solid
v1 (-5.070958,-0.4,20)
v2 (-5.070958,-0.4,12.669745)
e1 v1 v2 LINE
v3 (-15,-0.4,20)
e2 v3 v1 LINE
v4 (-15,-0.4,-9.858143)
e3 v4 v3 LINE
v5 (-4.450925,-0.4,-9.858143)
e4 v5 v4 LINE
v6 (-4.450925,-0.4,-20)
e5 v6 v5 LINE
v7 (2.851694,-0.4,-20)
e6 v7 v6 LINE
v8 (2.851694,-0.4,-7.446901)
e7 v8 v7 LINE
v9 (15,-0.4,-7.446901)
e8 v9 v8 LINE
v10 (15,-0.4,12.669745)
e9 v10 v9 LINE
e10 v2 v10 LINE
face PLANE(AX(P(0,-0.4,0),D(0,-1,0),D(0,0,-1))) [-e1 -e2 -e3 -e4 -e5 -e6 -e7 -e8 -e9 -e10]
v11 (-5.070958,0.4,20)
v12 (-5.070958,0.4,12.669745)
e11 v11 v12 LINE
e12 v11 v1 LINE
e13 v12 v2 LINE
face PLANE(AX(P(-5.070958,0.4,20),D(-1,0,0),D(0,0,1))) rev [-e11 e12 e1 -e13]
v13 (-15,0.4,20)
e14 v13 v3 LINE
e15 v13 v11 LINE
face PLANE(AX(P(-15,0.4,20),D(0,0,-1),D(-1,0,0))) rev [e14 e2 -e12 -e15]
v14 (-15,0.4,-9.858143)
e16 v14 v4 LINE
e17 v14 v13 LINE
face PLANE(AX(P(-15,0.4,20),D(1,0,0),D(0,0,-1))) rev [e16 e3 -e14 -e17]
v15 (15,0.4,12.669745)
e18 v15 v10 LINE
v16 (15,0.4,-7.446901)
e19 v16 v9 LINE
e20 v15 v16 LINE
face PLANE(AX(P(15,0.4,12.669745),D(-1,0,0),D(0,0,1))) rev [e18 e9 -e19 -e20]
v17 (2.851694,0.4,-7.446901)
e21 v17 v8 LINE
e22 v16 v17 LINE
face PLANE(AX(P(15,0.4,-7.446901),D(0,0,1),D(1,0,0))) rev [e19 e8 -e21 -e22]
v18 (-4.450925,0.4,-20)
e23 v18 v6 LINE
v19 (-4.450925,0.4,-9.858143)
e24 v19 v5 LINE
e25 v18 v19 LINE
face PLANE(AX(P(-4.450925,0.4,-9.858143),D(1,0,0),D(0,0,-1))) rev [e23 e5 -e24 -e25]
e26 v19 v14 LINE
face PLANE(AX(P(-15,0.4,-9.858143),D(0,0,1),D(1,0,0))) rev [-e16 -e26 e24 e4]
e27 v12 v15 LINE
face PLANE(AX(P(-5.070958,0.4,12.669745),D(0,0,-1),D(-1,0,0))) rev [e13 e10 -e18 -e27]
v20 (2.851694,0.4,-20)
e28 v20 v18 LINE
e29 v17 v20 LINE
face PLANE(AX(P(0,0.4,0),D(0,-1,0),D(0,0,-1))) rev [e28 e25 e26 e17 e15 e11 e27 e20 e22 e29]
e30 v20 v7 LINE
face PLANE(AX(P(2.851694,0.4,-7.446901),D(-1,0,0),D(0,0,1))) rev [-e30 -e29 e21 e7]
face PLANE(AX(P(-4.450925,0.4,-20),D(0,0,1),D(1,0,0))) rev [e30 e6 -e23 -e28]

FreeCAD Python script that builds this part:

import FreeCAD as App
import Part
import Sketcher
from FreeCAD import Vector

doc = App.newDocument("Part")
body = doc.addObject("PartDesign::Body", "Body")

sketch1 = doc.addObject("Sketcher::SketchObject", "Sketch")
body.addObject(sketch1)
sketch1.AttachmentSupport = (doc.XZ_Plane, [""])
sketch1.MapMode = "FlatFace"
sketch1.addGeometry(Part.LineSegment(Vector(-15, 20, 0), Vector(-5, 20, 0)), False)
sketch1.addGeometry(Part.LineSegment(Vector(-5, 20, 0), Vector(-5, 13, 0)), False)
sketch1.addGeometry(Part.LineSegment(Vector(-5, 13, 0), Vector(15, 13, 0)), False)
sketch1.addGeometry(Part.LineSegment(Vector(15, 13, 0), Vector(15, -7, 0)), False)
sketch1.addGeometry(Part.LineSegment(Vector(15, -7, 0), Vector(3, -7, 0)), False)
sketch1.addGeometry(Part.LineSegment(Vector(3, -7, 0), Vector(3, -20, 0)), False)
sketch1.addGeometry(Part.LineSegment(Vector(3, -20, 0), Vector(-4, -20, 0)), False)
sketch1.addGeometry(Part.LineSegment(Vector(-4, -20, 0), Vector(-4, -10, 0)), False)
sketch1.addGeometry(Part.LineSegment(Vector(-4, -10, 0), Vector(-15, -10, 0)), False)
sketch1.addGeometry(Part.LineSegment(Vector(-15, -10, 0), Vector(-15, 20, 0)), False)
sketch1.addConstraint(Sketcher.Constraint("Coincident", 0, 2, 1, 1))
sketch1.addConstraint(Sketcher.Constraint("Coincident", 1, 2, 2, 1))
sketch1.addConstraint(Sketcher.Constraint("Coincident", 2, 2, 3, 1))
sketch1.addConstraint(Sketcher.Constraint("Coincident", 3, 2, 4, 1))
sketch1.addConstraint(Sketcher.Constraint("Coincident", 4, 2, 5, 1))
sketch1.addConstraint(Sketcher.Constraint("Coincident", 5, 2, 6, 1))
sketch1.addConstraint(Sketcher.Constraint("Coincident", 6, 2, 7, 1))
sketch1.addConstraint(Sketcher.Constraint("Coincident", 7, 2, 8, 1))
sketch1.addConstraint(Sketcher.Constraint("Coincident", 8, 2, 9, 1))
sketch1.addConstraint(Sketcher.Constraint("Coincident", 9, 2, 0, 1))
sketch1.addConstraint(Sketcher.Constraint("Horizontal", 0))
sketch1.addConstraint(Sketcher.Constraint("Vertical", 1))
sketch1.addConstraint(Sketcher.Constraint("Horizontal", 2))
sketch1.addConstraint(Sketcher.Constraint("Vertical", 3))
sketch1.addConstraint(Sketcher.Constraint("Horizontal", 4))
sketch1.addConstraint(Sketcher.Constraint("Vertical", 5))
sketch1.addConstraint(Sketcher.Constraint("Horizontal", 6))
sketch1.addConstraint(Sketcher.Constraint("Vertical", 7))
sketch1.addConstraint(Sketcher.Constraint("Horizontal", 8))
sketch1.addConstraint(Sketcher.Constraint("Vertical", 9))
sketch1.addConstraint(Sketcher.Constraint("DistanceY", -1, 1, 0, 2, 20.0))
sketch1.addConstraint(Sketcher.Constraint("DistanceX", -1, 1, 2, 2, 15.0))
sketch1.addConstraint(Sketcher.Constraint("DistanceY", 5, 2, -1, 1, 20.0))
sketch1.addConstraint(Sketcher.Constraint("DistanceX", 8, 2, -1, 1, 15.0))
sketch1.addConstraint(Sketcher.Constraint("DistanceY", 5, 2, 5, 1, 12.553099))
sketch1.addConstraint(Sketcher.Constraint("DistanceX", 0, 1, 0, 2, 9.929042))
sketch1.addConstraint(Sketcher.Constraint("DistanceX", 6, 2, 6, 1, 7.302618))
sketch1.addConstraint(Sketcher.Constraint("DistanceX", 4, 2, 4, 1, 12.148306))
sketch1.addConstraint(Sketcher.Constraint("DistanceY", 1, 2, 1, 1, 7.330255))
sketch1.addConstraint(Sketcher.Constraint("DistanceY", 7, 1, 7, 2, 10.141857))
pad1 = doc.addObject("PartDesign::Pad", "Pad")
body.addObject(pad1)
pad1.Profile = sketch1
pad1.Length = 0.8
pad1.Midplane = True

doc.recompute()
